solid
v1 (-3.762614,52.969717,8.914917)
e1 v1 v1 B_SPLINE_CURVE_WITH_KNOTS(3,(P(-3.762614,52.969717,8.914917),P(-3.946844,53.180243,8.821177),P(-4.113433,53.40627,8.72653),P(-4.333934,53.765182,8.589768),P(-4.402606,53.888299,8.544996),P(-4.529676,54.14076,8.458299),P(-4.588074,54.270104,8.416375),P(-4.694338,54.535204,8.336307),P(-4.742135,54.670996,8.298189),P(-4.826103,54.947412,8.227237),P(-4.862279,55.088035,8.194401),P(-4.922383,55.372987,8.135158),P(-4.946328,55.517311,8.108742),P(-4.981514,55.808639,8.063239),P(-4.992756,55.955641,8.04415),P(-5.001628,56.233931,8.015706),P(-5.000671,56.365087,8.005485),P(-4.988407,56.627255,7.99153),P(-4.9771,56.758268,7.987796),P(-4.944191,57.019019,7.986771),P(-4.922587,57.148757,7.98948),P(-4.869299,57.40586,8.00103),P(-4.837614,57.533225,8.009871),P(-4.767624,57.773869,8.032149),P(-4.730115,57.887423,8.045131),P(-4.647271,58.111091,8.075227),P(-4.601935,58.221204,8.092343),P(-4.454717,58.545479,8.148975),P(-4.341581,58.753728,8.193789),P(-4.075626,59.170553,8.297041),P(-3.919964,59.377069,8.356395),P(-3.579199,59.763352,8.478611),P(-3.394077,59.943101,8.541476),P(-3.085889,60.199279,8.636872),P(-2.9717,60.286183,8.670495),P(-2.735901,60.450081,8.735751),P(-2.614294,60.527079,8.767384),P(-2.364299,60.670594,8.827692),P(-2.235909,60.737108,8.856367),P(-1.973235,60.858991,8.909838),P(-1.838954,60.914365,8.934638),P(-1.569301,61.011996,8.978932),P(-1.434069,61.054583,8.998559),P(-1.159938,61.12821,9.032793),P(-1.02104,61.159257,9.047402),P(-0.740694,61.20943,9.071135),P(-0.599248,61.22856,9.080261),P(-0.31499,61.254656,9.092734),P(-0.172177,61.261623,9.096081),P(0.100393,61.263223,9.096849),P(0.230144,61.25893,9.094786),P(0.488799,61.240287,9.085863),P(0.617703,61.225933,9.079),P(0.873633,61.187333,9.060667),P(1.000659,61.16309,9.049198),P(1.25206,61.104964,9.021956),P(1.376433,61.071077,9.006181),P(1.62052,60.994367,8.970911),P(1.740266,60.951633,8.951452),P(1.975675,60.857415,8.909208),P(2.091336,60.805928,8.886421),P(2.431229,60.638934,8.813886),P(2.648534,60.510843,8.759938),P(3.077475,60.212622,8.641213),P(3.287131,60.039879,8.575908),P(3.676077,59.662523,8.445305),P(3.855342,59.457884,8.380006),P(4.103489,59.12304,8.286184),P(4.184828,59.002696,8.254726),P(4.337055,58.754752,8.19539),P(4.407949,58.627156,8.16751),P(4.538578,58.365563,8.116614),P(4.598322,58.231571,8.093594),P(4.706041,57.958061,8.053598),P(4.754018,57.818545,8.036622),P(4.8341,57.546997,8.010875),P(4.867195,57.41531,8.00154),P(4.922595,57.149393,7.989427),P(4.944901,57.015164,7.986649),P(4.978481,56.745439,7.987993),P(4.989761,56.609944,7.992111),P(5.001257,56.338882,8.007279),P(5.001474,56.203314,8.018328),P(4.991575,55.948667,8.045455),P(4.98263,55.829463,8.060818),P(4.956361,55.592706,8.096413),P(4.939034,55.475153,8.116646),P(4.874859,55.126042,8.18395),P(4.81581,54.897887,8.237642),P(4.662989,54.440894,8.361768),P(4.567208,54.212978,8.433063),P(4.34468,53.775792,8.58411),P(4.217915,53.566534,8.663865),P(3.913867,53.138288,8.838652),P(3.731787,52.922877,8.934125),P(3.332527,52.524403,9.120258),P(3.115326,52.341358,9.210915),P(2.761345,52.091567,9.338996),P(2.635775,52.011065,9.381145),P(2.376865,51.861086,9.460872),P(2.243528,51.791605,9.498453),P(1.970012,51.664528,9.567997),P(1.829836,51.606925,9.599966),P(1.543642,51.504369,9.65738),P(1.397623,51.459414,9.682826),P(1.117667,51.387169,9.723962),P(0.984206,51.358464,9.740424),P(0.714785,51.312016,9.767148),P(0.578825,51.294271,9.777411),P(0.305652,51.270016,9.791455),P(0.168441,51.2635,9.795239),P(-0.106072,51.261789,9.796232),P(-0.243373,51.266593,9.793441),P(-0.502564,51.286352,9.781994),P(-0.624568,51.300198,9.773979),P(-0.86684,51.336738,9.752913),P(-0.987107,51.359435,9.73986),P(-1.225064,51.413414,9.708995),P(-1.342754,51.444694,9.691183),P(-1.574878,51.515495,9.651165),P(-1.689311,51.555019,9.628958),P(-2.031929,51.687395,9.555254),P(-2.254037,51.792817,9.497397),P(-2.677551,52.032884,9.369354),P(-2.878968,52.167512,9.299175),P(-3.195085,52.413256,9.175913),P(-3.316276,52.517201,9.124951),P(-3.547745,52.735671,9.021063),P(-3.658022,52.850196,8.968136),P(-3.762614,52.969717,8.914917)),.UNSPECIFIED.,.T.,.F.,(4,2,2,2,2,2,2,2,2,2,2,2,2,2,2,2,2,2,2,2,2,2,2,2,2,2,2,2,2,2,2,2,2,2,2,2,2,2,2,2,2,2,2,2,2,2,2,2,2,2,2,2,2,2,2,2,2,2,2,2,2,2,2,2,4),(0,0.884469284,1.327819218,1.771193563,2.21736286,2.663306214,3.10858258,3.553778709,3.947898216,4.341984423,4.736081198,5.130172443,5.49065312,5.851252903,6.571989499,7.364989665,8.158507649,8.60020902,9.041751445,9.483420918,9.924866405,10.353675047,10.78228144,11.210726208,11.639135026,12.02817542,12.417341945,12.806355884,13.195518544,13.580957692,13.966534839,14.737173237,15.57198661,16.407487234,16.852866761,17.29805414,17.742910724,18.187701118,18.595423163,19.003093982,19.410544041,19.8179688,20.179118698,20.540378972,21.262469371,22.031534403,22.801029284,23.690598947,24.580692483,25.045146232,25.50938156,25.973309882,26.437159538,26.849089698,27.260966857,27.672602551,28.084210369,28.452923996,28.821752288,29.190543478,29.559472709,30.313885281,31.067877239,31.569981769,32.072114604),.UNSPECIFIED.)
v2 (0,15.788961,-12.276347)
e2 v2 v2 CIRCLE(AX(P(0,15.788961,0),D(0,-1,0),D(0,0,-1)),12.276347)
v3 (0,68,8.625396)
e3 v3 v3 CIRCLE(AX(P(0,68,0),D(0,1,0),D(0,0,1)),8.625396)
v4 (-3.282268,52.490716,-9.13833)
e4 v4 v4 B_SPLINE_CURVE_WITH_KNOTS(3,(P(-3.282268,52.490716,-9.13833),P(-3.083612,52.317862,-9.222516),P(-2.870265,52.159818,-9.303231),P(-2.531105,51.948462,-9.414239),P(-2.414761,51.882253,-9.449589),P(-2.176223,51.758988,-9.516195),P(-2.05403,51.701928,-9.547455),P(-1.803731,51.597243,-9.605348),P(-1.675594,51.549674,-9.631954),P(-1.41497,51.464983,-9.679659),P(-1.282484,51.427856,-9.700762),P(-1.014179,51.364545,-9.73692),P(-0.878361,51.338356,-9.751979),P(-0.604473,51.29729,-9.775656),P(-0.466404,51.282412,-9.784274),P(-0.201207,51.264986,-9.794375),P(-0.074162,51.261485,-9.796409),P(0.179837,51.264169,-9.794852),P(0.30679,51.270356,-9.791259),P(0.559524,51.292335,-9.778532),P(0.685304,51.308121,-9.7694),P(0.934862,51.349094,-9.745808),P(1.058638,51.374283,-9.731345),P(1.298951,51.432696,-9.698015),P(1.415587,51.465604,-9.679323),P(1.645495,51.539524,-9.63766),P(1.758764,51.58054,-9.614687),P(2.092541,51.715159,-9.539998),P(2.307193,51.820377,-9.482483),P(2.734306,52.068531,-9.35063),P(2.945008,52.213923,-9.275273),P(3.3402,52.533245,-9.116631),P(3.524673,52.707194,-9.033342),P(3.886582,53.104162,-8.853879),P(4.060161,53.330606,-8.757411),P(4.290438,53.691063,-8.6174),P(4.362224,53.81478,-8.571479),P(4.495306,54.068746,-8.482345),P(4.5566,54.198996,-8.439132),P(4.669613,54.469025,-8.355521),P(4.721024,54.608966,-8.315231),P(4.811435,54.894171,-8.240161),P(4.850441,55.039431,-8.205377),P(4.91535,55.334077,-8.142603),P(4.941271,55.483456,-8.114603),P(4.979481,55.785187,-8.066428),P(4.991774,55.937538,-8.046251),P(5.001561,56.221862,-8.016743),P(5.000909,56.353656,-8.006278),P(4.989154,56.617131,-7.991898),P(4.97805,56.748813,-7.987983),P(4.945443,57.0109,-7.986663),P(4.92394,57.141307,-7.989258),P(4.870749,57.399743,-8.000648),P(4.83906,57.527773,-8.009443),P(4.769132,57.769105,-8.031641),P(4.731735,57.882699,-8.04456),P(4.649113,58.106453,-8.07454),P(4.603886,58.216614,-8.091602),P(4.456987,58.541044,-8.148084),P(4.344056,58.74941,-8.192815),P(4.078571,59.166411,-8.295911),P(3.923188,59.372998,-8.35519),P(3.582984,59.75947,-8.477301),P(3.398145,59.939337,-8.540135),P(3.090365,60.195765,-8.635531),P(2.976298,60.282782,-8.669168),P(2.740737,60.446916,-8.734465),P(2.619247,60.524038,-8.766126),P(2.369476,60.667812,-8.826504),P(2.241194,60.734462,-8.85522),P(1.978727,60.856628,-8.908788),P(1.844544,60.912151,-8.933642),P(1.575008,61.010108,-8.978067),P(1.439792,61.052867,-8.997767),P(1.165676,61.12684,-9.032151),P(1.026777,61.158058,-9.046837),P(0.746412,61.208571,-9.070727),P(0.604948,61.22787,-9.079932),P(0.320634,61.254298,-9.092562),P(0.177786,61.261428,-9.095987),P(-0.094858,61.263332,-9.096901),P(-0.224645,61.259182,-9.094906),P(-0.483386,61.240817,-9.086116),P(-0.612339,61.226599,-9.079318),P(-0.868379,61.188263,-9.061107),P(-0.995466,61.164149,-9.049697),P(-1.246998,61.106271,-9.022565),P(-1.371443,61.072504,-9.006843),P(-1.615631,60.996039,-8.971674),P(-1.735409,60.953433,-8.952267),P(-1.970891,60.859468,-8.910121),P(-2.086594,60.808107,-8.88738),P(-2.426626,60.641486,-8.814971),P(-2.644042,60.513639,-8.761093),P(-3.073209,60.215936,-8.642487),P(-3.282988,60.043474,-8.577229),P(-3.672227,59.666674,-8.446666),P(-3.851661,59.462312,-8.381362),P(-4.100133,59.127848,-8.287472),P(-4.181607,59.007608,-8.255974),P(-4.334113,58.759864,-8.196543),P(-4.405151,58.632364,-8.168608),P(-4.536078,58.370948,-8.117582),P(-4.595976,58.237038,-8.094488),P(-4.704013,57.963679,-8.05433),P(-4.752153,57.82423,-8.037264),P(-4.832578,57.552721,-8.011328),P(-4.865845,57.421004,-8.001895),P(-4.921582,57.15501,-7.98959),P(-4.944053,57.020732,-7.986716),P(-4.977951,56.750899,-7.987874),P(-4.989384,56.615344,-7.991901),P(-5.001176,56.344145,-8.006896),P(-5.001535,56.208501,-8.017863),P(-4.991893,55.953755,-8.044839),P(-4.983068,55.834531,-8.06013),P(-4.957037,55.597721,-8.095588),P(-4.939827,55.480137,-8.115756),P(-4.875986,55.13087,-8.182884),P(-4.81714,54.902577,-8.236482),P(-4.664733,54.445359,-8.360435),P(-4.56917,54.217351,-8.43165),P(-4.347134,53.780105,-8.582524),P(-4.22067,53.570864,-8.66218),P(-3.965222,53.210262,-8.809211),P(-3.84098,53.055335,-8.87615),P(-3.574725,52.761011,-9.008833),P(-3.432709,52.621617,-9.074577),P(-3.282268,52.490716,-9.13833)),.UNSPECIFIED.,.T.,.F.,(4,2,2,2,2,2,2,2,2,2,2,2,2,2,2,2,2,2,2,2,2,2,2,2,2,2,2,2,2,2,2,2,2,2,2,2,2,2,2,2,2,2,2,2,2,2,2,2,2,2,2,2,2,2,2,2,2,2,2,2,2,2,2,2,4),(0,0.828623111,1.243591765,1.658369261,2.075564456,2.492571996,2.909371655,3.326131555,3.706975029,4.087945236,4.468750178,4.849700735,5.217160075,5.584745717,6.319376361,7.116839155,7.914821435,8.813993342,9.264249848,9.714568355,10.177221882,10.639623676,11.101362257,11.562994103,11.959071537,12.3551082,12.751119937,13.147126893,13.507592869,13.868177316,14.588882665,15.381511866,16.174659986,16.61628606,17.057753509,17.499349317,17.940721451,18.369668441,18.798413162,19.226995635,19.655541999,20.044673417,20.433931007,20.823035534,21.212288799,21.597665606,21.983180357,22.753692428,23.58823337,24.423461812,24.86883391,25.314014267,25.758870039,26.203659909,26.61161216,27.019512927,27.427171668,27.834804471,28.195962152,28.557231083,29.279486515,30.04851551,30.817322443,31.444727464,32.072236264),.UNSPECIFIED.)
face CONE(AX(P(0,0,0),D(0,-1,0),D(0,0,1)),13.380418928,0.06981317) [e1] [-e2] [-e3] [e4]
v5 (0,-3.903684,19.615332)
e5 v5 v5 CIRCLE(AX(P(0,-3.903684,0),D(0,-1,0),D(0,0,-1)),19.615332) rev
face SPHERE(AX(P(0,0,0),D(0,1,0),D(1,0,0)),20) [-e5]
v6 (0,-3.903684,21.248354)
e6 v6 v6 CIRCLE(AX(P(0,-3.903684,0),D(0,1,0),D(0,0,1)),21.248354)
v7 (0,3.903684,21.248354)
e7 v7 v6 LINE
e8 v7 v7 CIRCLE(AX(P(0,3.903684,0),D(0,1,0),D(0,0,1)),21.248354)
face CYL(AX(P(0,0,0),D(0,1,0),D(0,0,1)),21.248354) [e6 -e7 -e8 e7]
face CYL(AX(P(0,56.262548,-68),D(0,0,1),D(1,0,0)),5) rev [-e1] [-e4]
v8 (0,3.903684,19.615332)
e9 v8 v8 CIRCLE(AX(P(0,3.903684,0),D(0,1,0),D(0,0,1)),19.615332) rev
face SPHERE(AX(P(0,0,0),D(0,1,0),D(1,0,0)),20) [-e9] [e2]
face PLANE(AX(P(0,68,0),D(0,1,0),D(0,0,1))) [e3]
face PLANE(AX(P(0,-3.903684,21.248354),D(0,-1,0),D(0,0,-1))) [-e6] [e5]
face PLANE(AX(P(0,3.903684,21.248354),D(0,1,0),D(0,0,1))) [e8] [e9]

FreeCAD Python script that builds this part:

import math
import FreeCAD as App
import Part
import Sketcher

V = App.Vector
Q = App.Units.Quantity


def add_polygon(sketch, points):
    """Adds a closed chain of lines whose ends are joined by coincident constraints."""
    first, n = sketch.GeometryCount, len(points)
    for a, b in zip(points, points[1:] + points[:1]):
        sketch.addGeometry(Part.LineSegment(App.Vector(*a, 0), App.Vector(*b, 0)), False)
    for i in range(n):
        sketch.addConstraint(Sketcher.Constraint("Coincident", first + i, 2, first + (i + 1) % n, 1))

doc = App.newDocument("Part")
body = doc.addObject("PartDesign::Body", "Body")

# Sketch on XY plane
sketch1 = body.newObject("Sketcher::SketchObject", "Sketch")
sketch1.AttachmentSupport = (doc.getObject("XY_Plane"), [""])
sketch1.MapMode = "FlatFace"
sketch1.addGeometry([
    Part.LineSegment(V(0, -20, 0), V(0, 20, 0)),
    Part.ArcOfCircle(Part.Circle(V(0, 0, 0), V(0, 0, 1), 20), math.radians(90), math.radians(270)),
], False)
sketch1.addConstraint([
    Sketcher.Constraint("Coincident", 0, 1, 1, 2),
    Sketcher.Constraint("Coincident", 1, 1, 0, 2),
    Sketcher.Constraint("Vertical", 0),
    Sketcher.Constraint("Coincident", 1, 3, -1, 1),
    Sketcher.Constraint("PointOnObject", 0, 1, -2),
    Sketcher.Constraint("Radius", 1, Q("20 mm")),
])
revolution = body.newObject("PartDesign::Revolution", "Revolution")
revolution.Profile = sketch1
revolution.ReferenceAxis = (sketch1, ["V_Axis"])
revolution.Angle = 360

# Sketch on XZ plane
sketch2 = body.newObject("Sketcher::SketchObject", "Sketch001")
sketch2.AttachmentSupport = (doc.getObject("XZ_Plane"), [""])
sketch2.MapMode = "FlatFace"
sketch2.addGeometry(Part.Circle(V(0, 0, 0), V(0, 0, 1), 13), False)
sketch2.addConstraint([
    Sketcher.Constraint("Coincident", 0, 3, -1, 1),
    Sketcher.Constraint("Diameter", 0, Q("26.760838 mm")),
])
pad1 = body.newObject("PartDesign::Pad", "Pad")
pad1.Profile = sketch2
pad1.Length = 68
pad1.Reversed = True
pad1.TaperAngle = -4

# Sketch on XY plane
sketch3 = body.newObject("Sketcher::SketchObject", "Sketch002")
sketch3.AttachmentSupport = (doc.getObject("XY_Plane"), [""])
sketch3.MapMode = "FlatFace"
sketch3.addGeometry(Part.Circle(V(0, 56, 0), V(0, 0, 1), 5), False)
sketch3.addConstraint([
    Sketcher.Constraint("PointOnObject", 0, 3, -2),
    Sketcher.Constraint("Diameter", 0, Q("10 mm")),
    Sketcher.Constraint("DistanceY", -1, 1, 0, 3, Q("56.262548 mm")),
])
pocket1 = body.newObject("PartDesign::Pocket", "Pocket")
pocket1.Profile = sketch3
pocket1.Type = "ThroughAll"
pocket1.Midplane = True

# Sketch on YZ plane
sketch4 = body.newObject("Sketcher::SketchObject", "Sketch003")
sketch4.AttachmentSupport = (doc.getObject("YZ_Plane"), [""])
sketch4.MapMode = "FlatFace"
add_polygon(sketch4, [(3.9, 21.2), (-3.9, 21.2), (-3.9, 18.8), (3.9, 18.8)])  # lines 0-3
sketch4.addConstraint([
    Sketcher.Constraint("Horizontal", 0),
    Sketcher.Constraint("Vertical", 1),
    Sketcher.Constraint("Horizontal", 2),
    Sketcher.Constraint("Vertical", 3),
    Sketcher.Constraint("DistanceX", 0, 2, 0, 1, Q("7.807368 mm")),
    Sketcher.Constraint("DistanceY", 1, 2, 1, 1, Q("2.496708 mm")),
    Sketcher.Constraint("DistanceX", 0, 2, -1, 1, Q("3.903684 mm")),
    Sketcher.Constraint("DistanceY", -1, 1, 0, 2, Q("21.248354 mm")),
])

# Sketch on XZ plane
sketch5 = body.newObject("Sketcher::SketchObject", "Sketch004")
sketch5.AttachmentSupport = (doc.getObject("XZ_Plane"), [""])
sketch5.MapMode = "FlatFace"
sketch5.addGeometry(Part.Circle(V(0, 0, 0), V(0, 0, 1), 20), False)
sketch5.addConstraint([
    Sketcher.Constraint("Coincident", 0, 3, -1, 1),
    Sketcher.Constraint("Diameter", 0, Q("40 mm")),
])
doc.recompute()

additivepipe = body.newObject("PartDesign::AdditivePipe", "AdditivePipe")
additivepipe.Profile = sketch4
additivepipe.Spine = (sketch5, ["Edge1"])

doc.recompute()
